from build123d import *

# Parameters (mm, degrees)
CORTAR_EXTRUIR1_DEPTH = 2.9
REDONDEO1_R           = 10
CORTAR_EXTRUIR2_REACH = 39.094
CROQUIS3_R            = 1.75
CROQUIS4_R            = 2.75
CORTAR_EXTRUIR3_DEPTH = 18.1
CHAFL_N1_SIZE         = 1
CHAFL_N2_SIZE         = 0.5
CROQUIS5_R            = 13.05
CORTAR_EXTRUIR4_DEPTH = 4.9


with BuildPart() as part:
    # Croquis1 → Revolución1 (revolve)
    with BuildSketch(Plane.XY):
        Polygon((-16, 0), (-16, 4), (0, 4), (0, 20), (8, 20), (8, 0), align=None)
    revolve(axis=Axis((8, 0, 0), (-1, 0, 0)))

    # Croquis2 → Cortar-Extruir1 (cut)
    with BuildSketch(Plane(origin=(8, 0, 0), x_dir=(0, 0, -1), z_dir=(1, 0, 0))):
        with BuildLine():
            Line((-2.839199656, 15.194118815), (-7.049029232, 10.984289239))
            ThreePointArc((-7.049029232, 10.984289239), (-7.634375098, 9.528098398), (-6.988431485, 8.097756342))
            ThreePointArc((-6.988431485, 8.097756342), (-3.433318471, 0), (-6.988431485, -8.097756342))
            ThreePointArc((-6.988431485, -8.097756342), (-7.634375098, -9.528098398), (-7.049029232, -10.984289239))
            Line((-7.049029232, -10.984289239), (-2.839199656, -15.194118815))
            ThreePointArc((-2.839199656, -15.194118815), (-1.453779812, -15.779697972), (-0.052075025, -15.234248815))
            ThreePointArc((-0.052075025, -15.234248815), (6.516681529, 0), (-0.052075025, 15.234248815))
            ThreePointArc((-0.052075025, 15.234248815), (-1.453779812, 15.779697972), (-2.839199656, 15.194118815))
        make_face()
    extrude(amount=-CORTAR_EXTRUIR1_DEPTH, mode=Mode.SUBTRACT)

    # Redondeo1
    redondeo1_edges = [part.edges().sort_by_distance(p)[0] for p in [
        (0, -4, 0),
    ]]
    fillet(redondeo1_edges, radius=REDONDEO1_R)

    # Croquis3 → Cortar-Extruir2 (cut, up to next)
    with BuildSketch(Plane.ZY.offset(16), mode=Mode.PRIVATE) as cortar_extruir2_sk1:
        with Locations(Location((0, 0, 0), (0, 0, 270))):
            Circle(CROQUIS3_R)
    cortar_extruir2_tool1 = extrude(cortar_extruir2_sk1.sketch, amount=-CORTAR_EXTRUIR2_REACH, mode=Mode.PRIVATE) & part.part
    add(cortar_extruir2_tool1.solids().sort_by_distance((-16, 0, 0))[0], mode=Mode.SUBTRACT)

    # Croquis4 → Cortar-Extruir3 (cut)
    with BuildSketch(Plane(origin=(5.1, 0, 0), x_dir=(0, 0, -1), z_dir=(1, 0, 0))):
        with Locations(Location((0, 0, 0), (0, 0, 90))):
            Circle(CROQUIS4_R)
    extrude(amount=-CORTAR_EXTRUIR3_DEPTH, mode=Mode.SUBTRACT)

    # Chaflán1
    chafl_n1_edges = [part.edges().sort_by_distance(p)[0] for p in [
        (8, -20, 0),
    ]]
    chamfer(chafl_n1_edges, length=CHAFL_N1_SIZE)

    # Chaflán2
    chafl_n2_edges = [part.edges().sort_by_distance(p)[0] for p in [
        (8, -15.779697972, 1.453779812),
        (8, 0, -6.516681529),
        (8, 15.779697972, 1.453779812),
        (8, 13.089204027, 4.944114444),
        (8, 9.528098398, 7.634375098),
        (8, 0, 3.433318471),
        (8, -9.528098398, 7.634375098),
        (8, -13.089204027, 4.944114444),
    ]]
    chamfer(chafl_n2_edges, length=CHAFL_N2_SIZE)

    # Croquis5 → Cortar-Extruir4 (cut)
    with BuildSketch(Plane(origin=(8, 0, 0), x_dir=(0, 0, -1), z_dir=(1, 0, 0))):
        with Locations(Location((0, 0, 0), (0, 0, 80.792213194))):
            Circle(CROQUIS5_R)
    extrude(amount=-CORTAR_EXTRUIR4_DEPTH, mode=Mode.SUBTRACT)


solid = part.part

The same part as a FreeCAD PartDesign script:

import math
import FreeCAD as App
import Part
import Sketcher

V = App.Vector


def edges_at(feature, points):
    """Names of the edges that pass closest to the given points."""
    edges = feature.Shape.Edges
    near = lambda p: min(range(len(edges)), key=lambda i: edges[i].distToShape(Part.Vertex(*p))[0])
    return sorted({f"Edge{near(p) + 1}" for p in points})

doc = App.newDocument("Part")
params = doc.addObject("Spreadsheet::Sheet", "Params")
for row, (alias, value) in enumerate([
    ("sketch1_width", "24 mm"),
    ("sketch1_width2", "8 mm"),
    ("sketch1_height", "4 mm"),
    ("revolution_angle", "360 deg"),
    ("sketch2_radius", "2 mm"),
    ("sketch2_radius2", "11 mm"),
    ("sketch2_radius3", "20.95 mm"),
    ("pocket1_length", "2.9 mm"),
    ("fillet_radius", "10 mm"),
    ("sketch3_diameter", "3.5 mm"),
    ("sketch4_diameter", "5.5 mm"),
    ("pocket3_length", "18.1 mm"),
    ("chamfer_size", "1 mm"),
    ("chamfer2_size", "0.5 mm"),
    ("sketch5_diameter", "26.1 mm"),
    ("pocket4_length", "4.9 mm"),
], start=1):
    params.set(f"A{row}", alias)
    params.set(f"B{row}", "=" + value)
    params.setAlias(f"B{row}", alias)

body = doc.addObject("PartDesign::Body", "Body")

sketch1 = body.newObject("Sketcher::SketchObject", "Sketch")
sketch1.AttachmentSupport = (doc.getObject("XY_Plane"), [""])
sketch1.MapMode = "FlatFace"
sketch1.addGeometry([
    Part.LineSegment(V(-16, 4, 0), V(-16, 0, 0)),
    Part.LineSegment(V(-16, 0, 0), V(8, 0, 0)),
    Part.LineSegment(V(8, 0, 0), V(8, 20, 0)),
    Part.LineSegment(V(8, 20, 0), V(0, 20, 0)),
    Part.LineSegment(V(0, 20, 0), V(0, 4, 0)),
    Part.LineSegment(V(0, 4, 0), V(-16, 4, 0)),
], False)
sketch1.addConstraint([
    Sketcher.Constraint("Coincident", 0, 2, 1, 1),
    Sketcher.Constraint("Coincident", 1, 2, 2, 1),
    Sketcher.Constraint("Coincident", 2, 2, 3, 1),
    Sketcher.Constraint("Coincident", 3, 2, 4, 1),
    Sketcher.Constraint("Coincident", 4, 2, 5, 1),
    Sketcher.Constraint("Coincident", 5, 2, 0, 1),
    Sketcher.Constraint("Vertical", 0),
    Sketcher.Constraint("Horizontal", 1),
    Sketcher.Constraint("Vertical", 2),
    Sketcher.Constraint("Horizontal", 3),
    Sketcher.Constraint("Vertical", 4),
    Sketcher.Constraint("Horizontal", 5),
    Sketcher.Constraint("PointOnObject", 0, 2, -1),
    Sketcher.Constraint("PointOnObject", 3, 2, -2),
    Sketcher.Constraint("Equal", 5, 4),
    Sketcher.Constraint("DistanceX", 1, 1, 1, 2, 24.0),
    Sketcher.Constraint("DistanceX", 3, 2, 3, 1, 8.0),
    Sketcher.Constraint("DistanceY", 0, 2, 0, 1, 4.0),
])
sketch1.setExpression("Constraints[15]", "Params.sketch1_width")
sketch1.setExpression("Constraints[16]", "Params.sketch1_width2")
sketch1.setExpression("Constraints[17]", "Params.sketch1_height")
revolution = body.newObject("PartDesign::Revolution", "Revolution")
revolution.Profile = sketch1
revolution.ReferenceAxis = (sketch1, ["H_Axis"])
revolution.setExpression("Angle", "Params.revolution_angle")

sketch2 = body.newObject("Sketcher::SketchObject", "Sketch001")
sketch2.AttachmentSupport = (doc.getObject("YZ_Plane"), [""])
sketch2.MapMode = "FlatFace"
sketch2.AttachmentOffset = App.Placement(V(0, 0, 8), App.Rotation())
sketch2.addGeometry([
    Part.LineSegment(V(15.194119, 2.8392, 0), V(10.984289, 7.049029, 0)),
    Part.ArcOfCircle(Part.Circle(V(9.570076, 5.634816, 0), V(0, 0, 1), 2), math.radians(45), math.radians(137.405298)),
    Part.ArcOfCircle(Part.Circle(V(0, 14.433318, 0), V(0, 0, 1), 11), math.radians(-137.405298), math.radians(-42.594702)),
    Part.ArcOfCircle(Part.Circle(V(-9.570076, 5.634816, 0), V(0, 0, 1), 2), math.radians(42.594702), math.radians(135)),
    Part.LineSegment(V(-10.984289, 7.049029, 0), V(-15.194119, 2.8392, 0)),
    Part.ArcOfCircle(Part.Circle(V(-13.779905, 1.424986, 0), V(0, 0, 1), 2), math.radians(135), math.radians(223.350184)),
    Part.ArcOfCircle(Part.Circle(V(0, 14.433318, 0), V(0, 0, 1), 20.95), math.radians(-136.649816), math.radians(-43.350184)),
    Part.ArcOfCircle(Part.Circle(V(13.779905, 1.424986, 0), V(0, 0, 1), 2), math.radians(-43.350184), math.radians(45)),
], False)
sketch2.addConstraint([
    Sketcher.Constraint("Tangent", 0, 2, 1, 1),
    Sketcher.Constraint("Tangent", 1, 2, 2, 2),
    Sketcher.Constraint("Tangent", 2, 1, 3, 1),
    Sketcher.Constraint("Tangent", 3, 2, 4, 1),
    Sketcher.Constraint("Tangent", 4, 2, 5, 1),
    Sketcher.Constraint("Tangent", 5, 2, 6, 1),
    Sketcher.Constraint("Tangent", 6, 2, 7, 1),
    Sketcher.Constraint("Tangent", 7, 2, 0, 1),
    Sketcher.Constraint("Coincident", 6, 3, 2, 3),
    Sketcher.Constraint("Equal", 1, 3),
    Sketcher.Constraint("Equal", 3, 5),
    Sketcher.Constraint("Equal", 5, 7),
    Sketcher.Constraint("Symmetric", 1, 3, 3, 3, -2),
    Sketcher.Constraint("Perpendicular", 0, 4),
    Sketcher.Constraint("Horizontal", 5, 3, 7, 3),
    Sketcher.Constraint("Radius", 1, 2.0),
    Sketcher.Constraint("Radius", 2, 11.0),
    Sketcher.Constraint("Radius", 6, 20.95),
    Sketcher.Constraint("Distance", 0, 5.953598),
    Sketcher.Constraint("DistanceY", -1, 1, 4, 2, 2.8392),
])
sketch2.setExpression("Constraints[15]", "Params.sketch2_radius")
sketch2.setExpression("Constraints[16]", "Params.sketch2_radius2")
sketch2.setExpression("Constraints[17]", "Params.sketch2_radius3")
pocket1 = body.newObject("PartDesign::Pocket", "Pocket")
pocket1.Profile = sketch2
pocket1.setExpression("Length", "Params.pocket1_length")
doc.recompute()

fillet = body.newObject("PartDesign::Fillet", "Fillet")
fillet.Base = (pocket1, edges_at(pocket1, [(0, -4, 0)]))
fillet.setExpression("Radius", "Params.fillet_radius")

sketch3 = body.newObject("Sketcher::SketchObject", "Sketch002")
sketch3.AttachmentSupport = (doc.getObject("YZ_Plane"), [""])
sketch3.MapMode = "FlatFace"
sketch3.AttachmentOffset = App.Placement(V(0, 0, -16), App.Rotation())
sketch3.addGeometry(Part.Circle(V(0, 0, 0), V(0, 0, 1), 1.75), False)
sketch3.addConstraint([
    Sketcher.Constraint("Coincident", 0, 3, -1, 1),
    Sketcher.Constraint("Diameter", 0, 3.5),
])
sketch3.setExpression("Constraints[1]", "Params.sketch3_diameter")
pocket2 = body.newObject("PartDesign::Pocket", "Pocket001")
pocket2.Profile = sketch3
pocket2.Type = "UpToFirst"
pocket2.Reversed = True

sketch4 = body.newObject("Sketcher::SketchObject", "Sketch003")
sketch4.AttachmentSupport = (doc.getObject("YZ_Plane"), [""])
sketch4.MapMode = "FlatFace"
sketch4.AttachmentOffset = App.Placement(V(0, 0, 5.1), App.Rotation())
sketch4.addGeometry(Part.Circle(V(0, 0, 0), V(0, 0, 1), 2.75), False)
sketch4.addConstraint([
    Sketcher.Constraint("Coincident", 0, 3, -1, 1),
    Sketcher.Constraint("Diameter", 0, 5.5),
])
sketch4.setExpression("Constraints[1]", "Params.sketch4_diameter")
pocket3 = body.newObject("PartDesign::Pocket", "Pocket002")
pocket3.Profile = sketch4
pocket3.setExpression("Length", "Params.pocket3_length")
doc.recompute()

chamfer = body.newObject("PartDesign::Chamfer", "Chamfer")
chamfer.Base = (pocket3, edges_at(pocket3, [(8, -20, 0)]))
chamfer.setExpression("Size", "Params.chamfer_size")
doc.recompute()

chamfer2 = body.newObject("PartDesign::Chamfer", "Chamfer001")
chamfer2.Base = (chamfer, edges_at(chamfer, [
    (8, -15.78, 1.454),
    (8, 0, -6.517),
    (8, 15.78, 1.454),
    (8, 13.089, 4.944),
    (8, 9.528, 7.634),
    (8, 0, 3.433),
    (8, -9.528, 7.634),
    (8, -13.089, 4.944),
]))
chamfer2.setExpression("Size", "Params.chamfer2_size")

sketch5 = body.newObject("Sketcher::SketchObject", "Sketch004")
sketch5.AttachmentSupport = (doc.getObject("YZ_Plane"), [""])
sketch5.MapMode = "FlatFace"
sketch5.AttachmentOffset = App.Placement(V(0, 0, 8), App.Rotation())
sketch5.addGeometry(Part.Circle(V(0, 0, 0), V(0, 0, 1), 13.05), False)
sketch5.addConstraint([
    Sketcher.Constraint("Coincident", 0, 3, -1, 1),
    Sketcher.Constraint("Diameter", 0, 26.1),
])
sketch5.setExpression("Constraints[1]", "Params.sketch5_diameter")
pocket4 = body.newObject("PartDesign::Pocket", "Pocket003")
pocket4.Profile = sketch5
pocket4.setExpression("Length", "Params.pocket4_length")

doc.recompute()
